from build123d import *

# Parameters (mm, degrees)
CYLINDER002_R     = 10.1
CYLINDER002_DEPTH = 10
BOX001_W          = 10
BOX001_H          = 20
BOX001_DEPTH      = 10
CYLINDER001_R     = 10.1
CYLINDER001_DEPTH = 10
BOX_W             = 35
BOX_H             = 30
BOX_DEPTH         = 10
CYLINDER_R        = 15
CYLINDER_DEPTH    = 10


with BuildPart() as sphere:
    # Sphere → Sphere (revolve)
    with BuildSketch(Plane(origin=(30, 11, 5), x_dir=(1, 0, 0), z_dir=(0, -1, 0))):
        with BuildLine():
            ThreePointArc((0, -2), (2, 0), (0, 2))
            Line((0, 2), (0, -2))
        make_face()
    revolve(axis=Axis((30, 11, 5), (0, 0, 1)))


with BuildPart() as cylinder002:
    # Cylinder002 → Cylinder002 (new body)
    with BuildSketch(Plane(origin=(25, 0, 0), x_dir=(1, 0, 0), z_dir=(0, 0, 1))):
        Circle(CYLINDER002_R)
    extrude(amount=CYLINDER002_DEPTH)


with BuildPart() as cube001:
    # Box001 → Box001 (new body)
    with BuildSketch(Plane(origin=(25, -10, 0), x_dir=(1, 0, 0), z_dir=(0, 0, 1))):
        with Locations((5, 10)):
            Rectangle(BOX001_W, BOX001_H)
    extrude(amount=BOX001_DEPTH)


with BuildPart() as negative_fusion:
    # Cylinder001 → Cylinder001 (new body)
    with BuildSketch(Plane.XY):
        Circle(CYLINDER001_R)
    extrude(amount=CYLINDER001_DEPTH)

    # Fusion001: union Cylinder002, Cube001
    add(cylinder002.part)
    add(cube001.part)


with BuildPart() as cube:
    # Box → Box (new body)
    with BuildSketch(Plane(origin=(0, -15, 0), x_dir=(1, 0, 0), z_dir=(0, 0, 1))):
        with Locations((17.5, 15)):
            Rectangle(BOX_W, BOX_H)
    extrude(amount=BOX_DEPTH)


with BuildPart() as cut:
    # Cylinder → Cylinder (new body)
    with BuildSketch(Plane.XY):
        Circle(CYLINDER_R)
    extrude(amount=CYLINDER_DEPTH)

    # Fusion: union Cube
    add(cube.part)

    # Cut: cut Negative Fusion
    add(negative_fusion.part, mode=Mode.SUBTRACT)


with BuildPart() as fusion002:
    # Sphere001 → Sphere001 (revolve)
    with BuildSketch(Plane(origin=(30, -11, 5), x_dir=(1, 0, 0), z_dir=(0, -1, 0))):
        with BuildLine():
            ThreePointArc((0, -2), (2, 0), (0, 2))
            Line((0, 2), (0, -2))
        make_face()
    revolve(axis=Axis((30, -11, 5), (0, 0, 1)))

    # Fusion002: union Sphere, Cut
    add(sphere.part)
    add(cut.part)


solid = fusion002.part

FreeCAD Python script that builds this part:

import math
import FreeCAD as App
import Part
import Sketcher

V = App.Vector
Q = App.Units.Quantity

doc = App.newDocument("Part")
body = doc.addObject("PartDesign::Body", "Body")

# Sketch on XZ plane
sketch1 = doc.addObject("Sketcher::SketchObject", "Sketch")
body.addObject(sketch1)
sketch1.AttachmentSupport = (doc.XZ_Plane, [""])
sketch1.MapMode = "FlatFace"
sketch1.AttachmentOffset = App.Placement(V(0, 0, -11), App.Rotation())
sketch1.addGeometry(Part.ArcOfCircle(Part.Circle(V(30, 5, 0), V(0, 0, 1), 2), math.radians(-90), math.radians(90)), False)
sketch1.addGeometry(Part.LineSegment(V(30, 7, 0), V(30, 3, 0)), False)
sketch1.addGeometry(Part.LineSegment(V(30, 3, 0), V(30, 7, 0)), True)  # axis
sketch1.addConstraint(Sketcher.Constraint("Coincident", 0, 1, 1, 2))
sketch1.addConstraint(Sketcher.Constraint("Coincident", 1, 1, 0, 2))
sketch1.addConstraint(Sketcher.Constraint("Vertical", 1))
sketch1.addConstraint(Sketcher.Constraint("Vertical", 2))
sketch1.addConstraint(Sketcher.Constraint("Coincident", 2, 1, 0, 1))
sketch1.addConstraint(Sketcher.Constraint("Equal", 1, 2))
sketch1.addConstraint(Sketcher.Constraint("Radius", 0, Q("2 mm")))
sketch1.addConstraint(Sketcher.Constraint("DistanceX", -1, 1, 0, 3, Q("30 mm")))
sketch1.addConstraint(Sketcher.Constraint("DistanceY", -1, 1, 0, 3, Q("5 mm")))
sketch1.addConstraint(Sketcher.Constraint("DistanceX", -1, 1, 0, 1, Q("30 mm")))
revolution = doc.addObject("PartDesign::Revolution", "Revolution")
body.addObject(revolution)
revolution.Profile = sketch1
revolution.ReferenceAxis = (sketch1, ["Axis0"])
revolution.Angle = 360
body2 = doc.addObject("PartDesign::Body", "Body001")

# Sketch on XY plane
sketch2 = doc.addObject("Sketcher::SketchObject", "Sketch001")
body2.addObject(sketch2)
sketch2.AttachmentSupport = (doc.getObject("XY_Plane001"), [""])
sketch2.MapMode = "FlatFace"
sketch2.addGeometry(Part.Circle(V(25, 0, 0), V(0, 0, 1), 10), False)
sketch2.addConstraint(Sketcher.Constraint("PointOnObject", 0, 3, -1))
sketch2.addConstraint(Sketcher.Constraint("Diameter", 0, Q("20.2 mm")))
sketch2.addConstraint(Sketcher.Constraint("DistanceX", -1, 1, 0, 3, Q("25 mm")))
pad1 = doc.addObject("PartDesign::Pad", "Pad")
body2.addObject(pad1)
pad1.Profile = sketch2
pad1.Length = 10
body3 = doc.addObject("PartDesign::Body", "Body002")

# Sketch on XY plane
sketch3 = doc.addObject("Sketcher::SketchObject", "Sketch002")
body3.addObject(sketch3)
sketch3.AttachmentSupport = (doc.getObject("XY_Plane002"), [""])
sketch3.MapMode = "FlatFace"
sketch3.addGeometry(Part.LineSegment(V(25, 10, 0), V(25, -10, 0)), False)
sketch3.addGeometry(Part.LineSegment(V(25, -10, 0), V(35, -10, 0)), False)
sketch3.addGeometry(Part.LineSegment(V(35, -10, 0), V(35, 10, 0)), False)
sketch3.addGeometry(Part.LineSegment(V(35, 10, 0), V(25, 10, 0)), False)
sketch3.addConstraint(Sketcher.Constraint("Coincident", 0, 2, 1, 1))
sketch3.addConstraint(Sketcher.Constraint("Coincident", 1, 2, 2, 1))
sketch3.addConstraint(Sketcher.Constraint("Coincident", 2, 2, 3, 1))
sketch3.addConstraint(Sketcher.Constraint("Coincident", 3, 2, 0, 1))
sketch3.addConstraint(Sketcher.Constraint("Vertical", 0))
sketch3.addConstraint(Sketcher.Constraint("Horizontal", 1))
sketch3.addConstraint(Sketcher.Constraint("Vertical", 2))
sketch3.addConstraint(Sketcher.Constraint("Horizontal", 3))
sketch3.addConstraint(Sketcher.Constraint("DistanceX", 1, 1, 1, 2, Q("10 mm")))
sketch3.addConstraint(Sketcher.Constraint("DistanceY", 0, 2, 0, 1, Q("20 mm")))
sketch3.addConstraint(Sketcher.Constraint("DistanceX", -1, 1, 0, 2, Q("25 mm")))
sketch3.addConstraint(Sketcher.Constraint("DistanceY", 0, 2, -1, 1, Q("10 mm")))
pad2 = doc.addObject("PartDesign::Pad", "Pad001")
body3.addObject(pad2)
pad2.Profile = sketch3
pad2.Length = 10
body4 = doc.addObject("PartDesign::Body", "Body003")
body4.AllowCompound = True

# Sketch on XY plane
sketch4 = doc.addObject("Sketcher::SketchObject", "Sketch003")
body4.addObject(sketch4)
sketch4.AttachmentSupport = (doc.getObject("XY_Plane003"), [""])
sketch4.MapMode = "FlatFace"
sketch4.addGeometry(Part.Circle(V(0, 0, 0), V(0, 0, 1), 10), False)
sketch4.addConstraint(Sketcher.Constraint("Coincident", 0, 3, -1, 1))
sketch4.addConstraint(Sketcher.Constraint("Diameter", 0, Q("20.2 mm")))
pad3 = doc.addObject("PartDesign::Pad", "Pad002")
body4.addObject(pad3)
pad3.Profile = sketch4
pad3.Length = 10
doc.recompute()

boolean = doc.addObject("PartDesign::Boolean", "Boolean")
body4.addObject(boolean)
boolean.Type = "Fuse"
boolean.addObjects([body2])
doc.recompute()

boolean2 = doc.addObject("PartDesign::Boolean", "Boolean001")
body4.addObject(boolean2)
boolean2.Type = "Fuse"
boolean2.addObjects([body3])
body5 = doc.addObject("PartDesign::Body", "Body004")

# Sketch on XY plane
sketch5 = doc.addObject("Sketcher::SketchObject", "Sketch004")
body5.addObject(sketch5)
sketch5.AttachmentSupport = (doc.getObject("XY_Plane004"), [""])
sketch5.MapMode = "FlatFace"
sketch5.addGeometry(Part.LineSegment(V(0, 15, 0), V(0, -15, 0)), False)
sketch5.addGeometry(Part.LineSegment(V(0, -15, 0), V(35, -15, 0)), False)
sketch5.addGeometry(Part.LineSegment(V(35, -15, 0), V(35, 15, 0)), False)
sketch5.addGeometry(Part.LineSegment(V(35, 15, 0), V(0, 15, 0)), False)
sketch5.addConstraint(Sketcher.Constraint("Coincident", 0, 2, 1, 1))
sketch5.addConstraint(Sketcher.Constraint("Coincident", 1, 2, 2, 1))
sketch5.addConstraint(Sketcher.Constraint("Coincident", 2, 2, 3, 1))
sketch5.addConstraint(Sketcher.Constraint("Coincident", 3, 2, 0, 1))
sketch5.addConstraint(Sketcher.Constraint("Vertical", 0))
sketch5.addConstraint(Sketcher.Constraint("Horizontal", 1))
sketch5.addConstraint(Sketcher.Constraint("Vertical", 2))
sketch5.addConstraint(Sketcher.Constraint("Horizontal", 3))
sketch5.addConstraint(Sketcher.Constraint("Symmetric", 0, 2, 3, 2, -1, 1))
sketch5.addConstraint(Sketcher.Constraint("DistanceX", 1, 1, 1, 2, Q("35 mm")))
sketch5.addConstraint(Sketcher.Constraint("DistanceY", 0, 2, 0, 1, Q("30 mm")))
pad4 = doc.addObject("PartDesign::Pad", "Pad003")
body5.addObject(pad4)
pad4.Profile = sketch5
pad4.Length = 10
body6 = doc.addObject("PartDesign::Body", "Body005")

# Sketch on XY plane
sketch6 = doc.addObject("Sketcher::SketchObject", "Sketch005")
body6.addObject(sketch6)
sketch6.AttachmentSupport = (doc.getObject("XY_Plane005"), [""])
sketch6.MapMode = "FlatFace"
sketch6.addGeometry(Part.Circle(V(0, 0, 0), V(0, 0, 1), 15), False)
sketch6.addConstraint(Sketcher.Constraint("Coincident", 0, 3, -1, 1))
sketch6.addConstraint(Sketcher.Constraint("Diameter", 0, Q("30 mm")))
pad5 = doc.addObject("PartDesign::Pad", "Pad004")
body6.addObject(pad5)
pad5.Profile = sketch6
pad5.Length = 10
doc.recompute()

boolean3 = doc.addObject("PartDesign::Boolean", "Boolean002")
body6.addObject(boolean3)
boolean3.Type = "Fuse"
boolean3.addObjects([body5])
doc.recompute()

boolean4 = doc.addObject("PartDesign::Boolean", "Boolean003")
body6.addObject(boolean4)
boolean4.Type = "Cut"
boolean4.addObjects([body4])
body7 = doc.addObject("PartDesign::Body", "Body006")
body7.AllowCompound = True

# Sketch on XZ plane
sketch7 = doc.addObject("Sketcher::SketchObject", "Sketch006")
body7.addObject(sketch7)
sketch7.AttachmentSupport = (doc.getObject("XZ_Plane006"), [""])
sketch7.MapMode = "FlatFace"
sketch7.AttachmentOffset = App.Placement(V(0, 0, 11), App.Rotation())
sketch7.addGeometry(Part.ArcOfCircle(Part.Circle(V(30, 5, 0), V(0, 0, 1), 2), math.radians(-90), math.radians(90)), False)
sketch7.addGeometry(Part.LineSegment(V(30, 7, 0), V(30, 3, 0)), False)
sketch7.addGeometry(Part.LineSegment(V(30, 3, 0), V(30, 7, 0)), True)  # axis
sketch7.addConstraint(Sketcher.Constraint("Coincident", 0, 1, 1, 2))
sketch7.addConstraint(Sketcher.Constraint("Coincident", 1, 1, 0, 2))
sketch7.addConstraint(Sketcher.Constraint("Vertical", 1))
sketch7.addConstraint(Sketcher.Constraint("Vertical", 2))
sketch7.addConstraint(Sketcher.Constraint("Coincident", 2, 1, 0, 1))
sketch7.addConstraint(Sketcher.Constraint("Equal", 1, 2))
sketch7.addConstraint(Sketcher.Constraint("Radius", 0, Q("2 mm")))
sketch7.addConstraint(Sketcher.Constraint("DistanceX", -1, 1, 0, 3, Q("30 mm")))
sketch7.addConstraint(Sketcher.Constraint("DistanceY", -1, 1, 0, 3, Q("5 mm")))
sketch7.addConstraint(Sketcher.Constraint("DistanceX", -1, 1, 0, 1, Q("30 mm")))
revolution2 = doc.addObject("PartDesign::Revolution", "Revolution001")
body7.addObject(revolution2)
revolution2.Profile = sketch7
revolution2.ReferenceAxis = (sketch7, ["Axis0"])
revolution2.Angle = 360
doc.recompute()

boolean5 = doc.addObject("PartDesign::Boolean", "Boolean004")
body7.addObject(boolean5)
boolean5.Type = "Fuse"
boolean5.addObjects([body])
doc.recompute()

boolean6 = doc.addObject("PartDesign::Boolean", "Boolean005")
body7.addObject(boolean6)
boolean6.Type = "Fuse"
boolean6.addObjects([body6])

doc.recompute()
